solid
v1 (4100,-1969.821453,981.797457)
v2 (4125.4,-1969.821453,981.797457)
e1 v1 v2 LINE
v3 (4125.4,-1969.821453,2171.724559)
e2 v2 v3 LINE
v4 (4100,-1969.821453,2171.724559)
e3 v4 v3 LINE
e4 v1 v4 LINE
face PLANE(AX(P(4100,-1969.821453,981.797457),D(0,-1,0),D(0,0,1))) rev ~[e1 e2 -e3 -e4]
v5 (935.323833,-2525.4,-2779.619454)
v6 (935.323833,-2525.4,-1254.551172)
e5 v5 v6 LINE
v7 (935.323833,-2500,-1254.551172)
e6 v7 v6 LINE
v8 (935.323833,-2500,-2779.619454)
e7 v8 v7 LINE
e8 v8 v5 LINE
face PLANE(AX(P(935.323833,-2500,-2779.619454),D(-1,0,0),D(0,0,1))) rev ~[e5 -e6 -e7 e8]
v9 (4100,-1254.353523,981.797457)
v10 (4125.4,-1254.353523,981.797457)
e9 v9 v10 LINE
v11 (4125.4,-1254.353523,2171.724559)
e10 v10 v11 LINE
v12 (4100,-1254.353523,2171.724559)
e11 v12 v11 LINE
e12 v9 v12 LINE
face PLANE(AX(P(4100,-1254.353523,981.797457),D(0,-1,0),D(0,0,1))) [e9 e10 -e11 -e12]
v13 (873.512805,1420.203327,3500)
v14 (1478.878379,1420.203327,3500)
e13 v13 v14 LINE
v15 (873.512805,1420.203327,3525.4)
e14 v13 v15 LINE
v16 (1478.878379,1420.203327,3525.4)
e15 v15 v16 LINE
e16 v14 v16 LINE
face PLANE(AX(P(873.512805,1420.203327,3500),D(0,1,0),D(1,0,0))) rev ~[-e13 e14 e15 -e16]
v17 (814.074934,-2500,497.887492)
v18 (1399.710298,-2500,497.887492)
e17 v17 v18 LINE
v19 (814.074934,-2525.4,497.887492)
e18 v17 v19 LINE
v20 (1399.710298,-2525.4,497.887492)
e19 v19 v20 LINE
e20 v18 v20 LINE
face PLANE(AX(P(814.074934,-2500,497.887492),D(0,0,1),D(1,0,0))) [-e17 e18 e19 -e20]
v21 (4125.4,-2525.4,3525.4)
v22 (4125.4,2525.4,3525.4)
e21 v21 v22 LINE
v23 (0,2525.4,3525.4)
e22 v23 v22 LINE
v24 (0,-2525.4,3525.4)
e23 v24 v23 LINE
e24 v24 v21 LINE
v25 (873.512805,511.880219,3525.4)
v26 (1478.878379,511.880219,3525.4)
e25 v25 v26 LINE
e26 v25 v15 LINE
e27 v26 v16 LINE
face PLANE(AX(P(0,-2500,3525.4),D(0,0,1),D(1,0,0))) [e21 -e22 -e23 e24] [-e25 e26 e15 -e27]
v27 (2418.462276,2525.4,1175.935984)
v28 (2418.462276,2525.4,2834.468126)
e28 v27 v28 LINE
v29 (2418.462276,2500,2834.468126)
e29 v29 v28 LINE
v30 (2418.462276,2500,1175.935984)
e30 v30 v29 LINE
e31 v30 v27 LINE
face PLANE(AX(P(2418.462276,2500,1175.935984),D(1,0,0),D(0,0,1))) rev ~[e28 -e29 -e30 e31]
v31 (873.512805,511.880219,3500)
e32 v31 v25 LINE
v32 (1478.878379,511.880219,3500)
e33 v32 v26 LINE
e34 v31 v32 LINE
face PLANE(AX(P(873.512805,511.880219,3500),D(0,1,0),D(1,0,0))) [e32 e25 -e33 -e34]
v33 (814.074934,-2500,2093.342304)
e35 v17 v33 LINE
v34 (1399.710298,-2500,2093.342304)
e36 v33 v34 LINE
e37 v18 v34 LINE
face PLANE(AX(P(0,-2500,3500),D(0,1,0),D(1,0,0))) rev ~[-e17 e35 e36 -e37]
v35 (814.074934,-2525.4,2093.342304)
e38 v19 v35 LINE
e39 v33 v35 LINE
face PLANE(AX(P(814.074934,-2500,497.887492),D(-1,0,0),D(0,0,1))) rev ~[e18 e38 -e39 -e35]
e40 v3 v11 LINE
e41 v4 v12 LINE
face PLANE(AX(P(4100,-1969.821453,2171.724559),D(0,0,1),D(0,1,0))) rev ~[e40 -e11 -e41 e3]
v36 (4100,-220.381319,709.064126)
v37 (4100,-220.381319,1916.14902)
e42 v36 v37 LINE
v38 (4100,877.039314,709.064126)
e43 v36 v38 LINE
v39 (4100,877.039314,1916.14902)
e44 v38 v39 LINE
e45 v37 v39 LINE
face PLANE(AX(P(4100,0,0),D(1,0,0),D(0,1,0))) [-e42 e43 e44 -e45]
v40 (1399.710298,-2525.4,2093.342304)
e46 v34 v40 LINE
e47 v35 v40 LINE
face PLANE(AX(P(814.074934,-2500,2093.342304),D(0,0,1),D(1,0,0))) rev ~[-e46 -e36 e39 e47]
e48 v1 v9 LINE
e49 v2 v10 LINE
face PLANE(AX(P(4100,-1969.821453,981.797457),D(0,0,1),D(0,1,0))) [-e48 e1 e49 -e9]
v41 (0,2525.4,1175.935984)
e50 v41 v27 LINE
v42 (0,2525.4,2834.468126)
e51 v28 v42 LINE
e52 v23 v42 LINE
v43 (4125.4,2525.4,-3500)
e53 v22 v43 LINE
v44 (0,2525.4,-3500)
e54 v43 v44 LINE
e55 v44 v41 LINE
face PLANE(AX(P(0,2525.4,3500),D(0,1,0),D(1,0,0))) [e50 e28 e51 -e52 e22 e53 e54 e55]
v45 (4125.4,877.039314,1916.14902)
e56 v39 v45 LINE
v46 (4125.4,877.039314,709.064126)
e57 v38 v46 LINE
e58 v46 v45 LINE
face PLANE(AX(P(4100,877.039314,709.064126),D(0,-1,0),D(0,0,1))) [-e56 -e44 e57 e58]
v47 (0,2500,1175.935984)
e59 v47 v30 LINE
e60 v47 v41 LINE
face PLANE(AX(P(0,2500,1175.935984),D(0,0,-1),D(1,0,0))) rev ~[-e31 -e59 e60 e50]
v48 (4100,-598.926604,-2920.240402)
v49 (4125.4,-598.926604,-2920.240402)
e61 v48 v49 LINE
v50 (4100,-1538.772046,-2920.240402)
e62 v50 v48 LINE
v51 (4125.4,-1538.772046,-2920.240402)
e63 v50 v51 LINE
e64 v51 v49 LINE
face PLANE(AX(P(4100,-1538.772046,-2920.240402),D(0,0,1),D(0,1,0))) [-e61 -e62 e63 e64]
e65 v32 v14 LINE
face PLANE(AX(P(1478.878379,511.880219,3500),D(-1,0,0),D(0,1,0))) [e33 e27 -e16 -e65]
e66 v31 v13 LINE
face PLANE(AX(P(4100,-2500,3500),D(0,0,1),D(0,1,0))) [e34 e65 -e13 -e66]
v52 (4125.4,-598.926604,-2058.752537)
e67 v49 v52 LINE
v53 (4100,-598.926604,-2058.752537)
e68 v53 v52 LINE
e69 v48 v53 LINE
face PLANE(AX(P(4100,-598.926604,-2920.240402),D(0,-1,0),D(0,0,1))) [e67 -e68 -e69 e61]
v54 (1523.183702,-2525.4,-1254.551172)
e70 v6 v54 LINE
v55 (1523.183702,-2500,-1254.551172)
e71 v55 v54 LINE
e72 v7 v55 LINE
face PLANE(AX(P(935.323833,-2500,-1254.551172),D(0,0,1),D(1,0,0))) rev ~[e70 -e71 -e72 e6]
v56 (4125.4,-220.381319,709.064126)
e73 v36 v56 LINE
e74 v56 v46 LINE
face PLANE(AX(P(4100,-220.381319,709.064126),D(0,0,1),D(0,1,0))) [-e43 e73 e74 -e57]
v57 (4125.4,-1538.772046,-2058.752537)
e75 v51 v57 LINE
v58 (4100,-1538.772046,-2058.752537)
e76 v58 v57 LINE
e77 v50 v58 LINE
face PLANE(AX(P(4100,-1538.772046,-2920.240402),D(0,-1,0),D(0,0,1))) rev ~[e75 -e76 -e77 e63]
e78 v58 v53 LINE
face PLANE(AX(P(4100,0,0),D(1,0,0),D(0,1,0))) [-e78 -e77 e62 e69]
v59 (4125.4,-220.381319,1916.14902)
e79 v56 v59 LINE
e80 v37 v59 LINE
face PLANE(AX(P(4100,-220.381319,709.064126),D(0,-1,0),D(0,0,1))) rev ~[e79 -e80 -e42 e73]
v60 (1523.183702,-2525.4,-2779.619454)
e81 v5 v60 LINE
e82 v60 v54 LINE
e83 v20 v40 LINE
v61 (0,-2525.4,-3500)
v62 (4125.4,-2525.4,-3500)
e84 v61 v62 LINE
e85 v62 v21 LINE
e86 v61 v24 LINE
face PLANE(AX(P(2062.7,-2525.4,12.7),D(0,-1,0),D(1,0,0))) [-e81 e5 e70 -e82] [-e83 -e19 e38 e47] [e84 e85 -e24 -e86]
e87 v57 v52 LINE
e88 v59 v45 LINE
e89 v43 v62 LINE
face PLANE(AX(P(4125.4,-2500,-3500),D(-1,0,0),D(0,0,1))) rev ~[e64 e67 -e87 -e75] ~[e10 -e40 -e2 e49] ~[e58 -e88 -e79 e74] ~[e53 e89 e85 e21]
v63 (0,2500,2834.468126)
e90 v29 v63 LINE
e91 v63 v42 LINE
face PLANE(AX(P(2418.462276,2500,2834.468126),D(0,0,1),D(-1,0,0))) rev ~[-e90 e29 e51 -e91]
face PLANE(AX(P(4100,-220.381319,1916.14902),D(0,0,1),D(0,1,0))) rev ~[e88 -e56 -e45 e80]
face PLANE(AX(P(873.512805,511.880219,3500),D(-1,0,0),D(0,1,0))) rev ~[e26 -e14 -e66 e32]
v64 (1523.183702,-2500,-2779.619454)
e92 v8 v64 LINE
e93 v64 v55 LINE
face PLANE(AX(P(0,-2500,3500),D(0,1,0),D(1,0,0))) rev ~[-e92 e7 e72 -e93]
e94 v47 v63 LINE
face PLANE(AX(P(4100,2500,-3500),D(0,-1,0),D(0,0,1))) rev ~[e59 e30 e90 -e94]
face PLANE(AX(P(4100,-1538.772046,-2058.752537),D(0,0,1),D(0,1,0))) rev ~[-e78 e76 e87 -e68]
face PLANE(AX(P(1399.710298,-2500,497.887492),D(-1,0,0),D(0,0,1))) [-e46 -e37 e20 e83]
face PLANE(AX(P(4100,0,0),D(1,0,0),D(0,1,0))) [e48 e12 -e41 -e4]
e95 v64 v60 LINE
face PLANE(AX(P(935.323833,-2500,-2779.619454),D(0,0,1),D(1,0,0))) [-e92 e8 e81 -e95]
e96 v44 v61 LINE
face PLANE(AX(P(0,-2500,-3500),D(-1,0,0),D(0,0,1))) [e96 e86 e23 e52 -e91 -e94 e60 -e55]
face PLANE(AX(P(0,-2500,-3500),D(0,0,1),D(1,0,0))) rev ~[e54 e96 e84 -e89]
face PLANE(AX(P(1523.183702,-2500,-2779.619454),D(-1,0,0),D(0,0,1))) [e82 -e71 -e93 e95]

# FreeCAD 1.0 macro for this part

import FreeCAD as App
import Part
import Sketcher
from FreeCAD import Vector
Q = App.Units.Quantity


def add_polygon(sketch, points):
    """Adds a closed chain of lines whose ends are joined by coincident constraints."""
    first, n = sketch.GeometryCount, len(points)
    for a, b in zip(points, points[1:] + points[:1]):
        sketch.addGeometry(Part.LineSegment(App.Vector(*a, 0), App.Vector(*b, 0)), False)
    for i in range(n):
        sketch.addConstraint(Sketcher.Constraint("Coincident", first + i, 2, first + (i + 1) % n, 1))

doc = App.newDocument("Part")
body = doc.addObject("PartDesign::Body", "Body")

sketch1 = body.newObject("Sketcher::SketchObject", "Sketch")
sketch1.AttachmentSupport = (doc.getObject("YZ_Plane"), [""])
sketch1.MapMode = "FlatFace"
add_polygon(sketch1, [(-2500, 3500), (-2500, -3500), (2500, -3500), (2500, 3500)])
sketch1.addConstraint([
    Sketcher.Constraint("Vertical", 0),
    Sketcher.Constraint("Horizontal", 1),
    Sketcher.Constraint("Vertical", 2),
    Sketcher.Constraint("Horizontal", 3),
    Sketcher.Constraint("Symmetric", 0, 2, 2, 2, -1, 1),
    Sketcher.Constraint("DistanceX", 1, 1, 1, 2, Q("5000 mm")),
    Sketcher.Constraint("DistanceY", 0, 2, 0, 1, Q("7000 mm")),
])
pad1 = body.newObject("PartDesign::Pad", "Pad")
pad1.Profile = sketch1
pad1.Length = 4100

sketch2 = body.newObject("Sketcher::SketchObject", "Sketch001")
sketch2.AttachmentSupport = (doc.getObject("YZ_Plane"), [""])
sketch2.MapMode = "FlatFace"
sketch2.AttachmentOffset = App.Placement(Vector(0, 0, 4100), App.Rotation())
add_polygon(sketch2, [(-2500, 3500), (-2500, -3500), (2500, -3500), (2500, 3500)])
add_polygon(sketch2, [(-598.926604, -2920.240402), (-1538.772046, -2920.240402), (-1538.772046, -2058.752537), (-598.926604, -2058.752537)])
add_polygon(sketch2, [(-1254.353523, 981.797457), (-1969.821453, 981.797457), (-1969.821453, 2171.724559), (-1254.353523, 2171.724559)])
add_polygon(sketch2, [(877.039314, 709.064126), (-220.381319, 709.064126), (-220.381319, 1916.14902), (877.039314, 1916.14902)])
sketch2.addConstraint([
    Sketcher.Constraint("Vertical", 0),
    Sketcher.Constraint("Horizontal", 1),
    Sketcher.Constraint("Vertical", 2),
    Sketcher.Constraint("Horizontal", 3),
    Sketcher.Constraint("Horizontal", 4),
    Sketcher.Constraint("Vertical", 5),
    Sketcher.Constraint("Horizontal", 6),
    Sketcher.Constraint("Vertical", 7),
    Sketcher.Constraint("Horizontal", 8),
    Sketcher.Constraint("Vertical", 9),
    Sketcher.Constraint("Horizontal", 10),
    Sketcher.Constraint("Vertical", 11),
    Sketcher.Constraint("Horizontal", 12),
    Sketcher.Constraint("Vertical", 13),
    Sketcher.Constraint("Horizontal", 14),
    Sketcher.Constraint("Vertical", 15),
    Sketcher.Constraint("Symmetric", 0, 2, 2, 2, -1, 1),
    Sketcher.Constraint("DistanceX", 1, 1, 1, 2, Q("5000 mm")),
    Sketcher.Constraint("DistanceY", 0, 2, 0, 1, Q("7000 mm")),
    Sketcher.Constraint("DistanceY", 9, 1, 9, 2, Q("1189.927101 mm")),
    Sketcher.Constraint("DistanceX", 8, 2, 8, 1, Q("715.46793 mm")),
    Sketcher.Constraint("DistanceY", 4, 2, -1, 1, Q("2920.240402 mm")),
    Sketcher.Constraint("DistanceX", 4, 2, 4, 1, Q("939.845443 mm")),
    Sketcher.Constraint("DistanceX", 12, 2, 12, 1, Q("1097.420633 mm")),
    Sketcher.Constraint("DistanceY", 5, 1, 5, 2, Q("861.487865 mm")),
    Sketcher.Constraint("DistanceY", 13, 1, 13, 2, Q("1207.084894 mm")),
    Sketcher.Constraint("DistanceY", -1, 1, 9, 2, Q("2171.724559 mm")),
    Sketcher.Constraint("DistanceX", 12, 2, -1, 1, Q("220.381319 mm")),
    Sketcher.Constraint("DistanceY", -1, 1, 13, 2, Q("1916.14902 mm")),
    Sketcher.Constraint("DistanceX", 8, 2, 6, 2, Q("1370.894849 mm")),
    Sketcher.Constraint("DistanceX", 4, 2, -1, 1, Q("1538.772046 mm")),
])
pad2 = body.newObject("PartDesign::Pad", "Pad001")
pad2.Profile = sketch2
pad2.Length = 25.4

sketch3 = body.newObject("Sketcher::SketchObject", "Sketch002")
sketch3.AttachmentSupport = (doc.getObject("XZ_Plane"), [""])
sketch3.MapMode = "FlatFace"
sketch3.AttachmentOffset = App.Placement(Vector(0, 0, -2500), App.Rotation())
add_polygon(sketch3, [(0, -3500), (0, 1175.935984), (2418.462276, 1175.935984), (2418.462276, 2834.468126), (0, 2834.468126), (0, 3500), (4125.4, 3500), (4125.4, -3500)])
sketch3.addConstraint([
    Sketcher.Constraint("Vertical", 0),
    Sketcher.Constraint("Horizontal", 1),
    Sketcher.Constraint("Vertical", 2),
    Sketcher.Constraint("Horizontal", 3),
    Sketcher.Constraint("Vertical", 4),
    Sketcher.Constraint("Horizontal", 5),
    Sketcher.Constraint("Vertical", 6),
    Sketcher.Constraint("Horizontal", 7),
    Sketcher.Constraint("Symmetric", 4, 2, 7, 2, -1, 1),
    Sketcher.Constraint("PointOnObject", 0, 2, -2),
    Sketcher.Constraint("DistanceY", 6, 2, 6, 1, Q("7000 mm")),
    Sketcher.Constraint("DistanceX", 5, 1, 5, 2, Q("4125.4 mm")),
    Sketcher.Constraint("DistanceX", 1, 1, 1, 2, Q("2418.462276 mm")),
    Sketcher.Constraint("DistanceY", 0, 1, 0, 2, Q("4675.935984 mm")),
    Sketcher.Constraint("DistanceY", 2, 1, 2, 2, Q("1658.532142 mm")),
])
pad3 = body.newObject("PartDesign::Pad", "Pad002")
pad3.Profile = sketch3
pad3.Length = 25.4
pad3.Reversed = True

sketch4 = body.newObject("Sketcher::SketchObject", "Sketch003")
sketch4.AttachmentSupport = (doc.getObject("XY_Plane"), [""])
sketch4.MapMode = "FlatFace"
sketch4.AttachmentOffset = App.Placement(Vector(0, 0, 3500), App.Rotation())
add_polygon(sketch4, [(0, 2525.4), (0, -2500), (4125.4, -2500), (4125.4, 2525.4)])
add_polygon(sketch4, [(1478.878379, 511.880219), (873.512805, 511.880219), (873.512805, 1420.203327), (1478.878379, 1420.203327)])
sketch4.addConstraint([
    Sketcher.Constraint("Vertical", 0),
    Sketcher.Constraint("Horizontal", 1),
    Sketcher.Constraint("Vertical", 2),
    Sketcher.Constraint("Horizontal", 3),
    Sketcher.Constraint("Horizontal", 4),
    Sketcher.Constraint("Vertical", 5),
    Sketcher.Constraint("Horizontal", 6),
    Sketcher.Constraint("Vertical", 7),
    Sketcher.Constraint("PointOnObject", 0, 2, -2),
    Sketcher.Constraint("DistanceX", 1, 1, 1, 2, Q("4125.4 mm")),
    Sketcher.Constraint("DistanceY", 0, 2, 0, 1, Q("5025.4 mm")),
    Sketcher.Constraint("DistanceY", 0, 2, -1, 1, Q("2500 mm")),
    Sketcher.Constraint("DistanceY", 5, 1, 5, 2, Q("908.323109 mm")),
    Sketcher.Constraint("DistanceX", 4, 2, 4, 1, Q("605.365574 mm")),
    Sketcher.Constraint("DistanceY", -1, 1, 4, 2, Q("511.880219 mm")),
    Sketcher.Constraint("DistanceX", -1, 1, 6, 2, Q("1478.878379 mm")),
])
pad4 = body.newObject("PartDesign::Pad", "Pad003")
pad4.Profile = sketch4
pad4.Length = 25.4

sketch5 = body.newObject("Sketcher::SketchObject", "Sketch004")
sketch5.AttachmentSupport = (doc.getObject("XZ_Plane"), [""])
sketch5.MapMode = "FlatFace"
sketch5.AttachmentOffset = App.Placement(Vector(0, 0, 2500), App.Rotation())
add_polygon(sketch5, [(0, 3525.4), (0, -3500), (4125.4, -3500), (4125.4, 3525.4)])
add_polygon(sketch5, [(1523.183702, -2779.619454), (935.323833, -2779.619454), (935.323833, -1254.551172), (1523.183702, -1254.551172)])
add_polygon(sketch5, [(1399.710298, 497.887492), (814.074934, 497.887492), (814.074934, 2093.342304), (1399.710298, 2093.342304)])
sketch5.addConstraint([
    Sketcher.Constraint("Vertical", 0),
    Sketcher.Constraint("Horizontal", 1),
    Sketcher.Constraint("Vertical", 2),
    Sketcher.Constraint("Horizontal", 3),
    Sketcher.Constraint("Horizontal", 4),
    Sketcher.Constraint("Vertical", 5),
    Sketcher.Constraint("Horizontal", 6),
    Sketcher.Constraint("Vertical", 7),
    Sketcher.Constraint("Horizontal", 8),
    Sketcher.Constraint("Vertical", 9),
    Sketcher.Constraint("Horizontal", 10),
    Sketcher.Constraint("Vertical", 11),
    Sketcher.Constraint("PointOnObject", 0, 2, -2),
    Sketcher.Constraint("DistanceX", 1, 1, 1, 2, Q("4125.4 mm")),
    Sketcher.Constraint("DistanceY", 0, 2, 0, 1, Q("7025.4 mm")),
    Sketcher.Constraint("DistanceY", 0, 2, -1, 1, Q("3500 mm")),
    Sketcher.Constraint("DistanceX", 4, 2, 4, 1, Q("587.859869 mm")),
    Sketcher.Constraint("DistanceY", 9, 1, 9, 2, Q("1595.454812 mm")),
    Sketcher.Constraint("DistanceX", -1, 1, 10, 2, Q("1399.710298 mm")),
    Sketcher.Constraint("DistanceX", 8, 2, 5, 2, Q("121.248899 mm")),
    Sketcher.Constraint("DistanceX", 8, 2, 8, 1, Q("585.635364 mm")),
    Sketcher.Constraint("DistanceY", 5, 1, 5, 2, Q("1525.068283 mm")),
    Sketcher.Constraint("DistanceY", 5, 2, -1, 1, Q("1254.551172 mm")),
    Sketcher.Constraint("DistanceY", -1, 1, 8, 2, Q("497.887492 mm")),
])
pad5 = body.newObject("PartDesign::Pad", "Pad004")
pad5.Profile = sketch5
pad5.Length = 25.4

doc.recompute()
